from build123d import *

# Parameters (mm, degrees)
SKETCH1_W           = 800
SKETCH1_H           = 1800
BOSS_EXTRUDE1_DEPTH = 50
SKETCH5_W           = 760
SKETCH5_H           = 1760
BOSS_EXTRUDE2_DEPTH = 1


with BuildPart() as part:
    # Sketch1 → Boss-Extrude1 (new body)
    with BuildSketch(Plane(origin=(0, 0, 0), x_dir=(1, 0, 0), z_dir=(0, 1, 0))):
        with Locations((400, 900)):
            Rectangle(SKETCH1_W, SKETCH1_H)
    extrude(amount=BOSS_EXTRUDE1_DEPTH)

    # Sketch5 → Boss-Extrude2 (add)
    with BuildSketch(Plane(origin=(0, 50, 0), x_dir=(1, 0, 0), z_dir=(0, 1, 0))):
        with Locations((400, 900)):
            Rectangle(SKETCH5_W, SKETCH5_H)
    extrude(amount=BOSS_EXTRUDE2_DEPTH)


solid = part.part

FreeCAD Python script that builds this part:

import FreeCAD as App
import Part
import Sketcher
Q = App.Units.Quantity

doc = App.newDocument("Part")
body = doc.addObject("PartDesign::Body", "Body")

sketch1 = body.newObject("Sketcher::SketchObject", "Sketch")
sketch1.AttachmentSupport = (doc.getObject("XZ_Plane"), [""])
sketch1.MapMode = "FlatFace"
sketch1.addGeometry(Part.LineSegment(App.Vector(0, -1800, 0), App.Vector(0, 0, 0)), False)
sketch1.addGeometry(Part.LineSegment(App.Vector(0, 0, 0), App.Vector(800, 0, 0)), False)
sketch1.addGeometry(Part.LineSegment(App.Vector(800, 0, 0), App.Vector(800, -1800, 0)), False)
sketch1.addGeometry(Part.LineSegment(App.Vector(800, -1800, 0), App.Vector(0, -1800, 0)), False)
sketch1.addConstraint(Sketcher.Constraint("Coincident", 0, 2, 1, 1))
sketch1.addConstraint(Sketcher.Constraint("Coincident", 1, 2, 2, 1))
sketch1.addConstraint(Sketcher.Constraint("Coincident", 2, 2, 3, 1))
sketch1.addConstraint(Sketcher.Constraint("Coincident", 3, 2, 0, 1))
sketch1.addConstraint(Sketcher.Constraint("Vertical", 0))
sketch1.addConstraint(Sketcher.Constraint("Horizontal", 1))
sketch1.addConstraint(Sketcher.Constraint("Vertical", 2))
sketch1.addConstraint(Sketcher.Constraint("Horizontal", 3))
sketch1.addConstraint(Sketcher.Constraint("Coincident", 0, 2, -1, 1))
sketch1.addConstraint(Sketcher.Constraint("DistanceX", 1, 1, 1, 2, Q("800 mm")))
sketch1.addConstraint(Sketcher.Constraint("DistanceY", 0, 1, 0, 2, Q("1800 mm")))
pad1 = body.newObject("PartDesign::Pad", "Pad")
pad1.Profile = sketch1
pad1.Length = 50
pad1.Reversed = True

sketch2 = body.newObject("Sketcher::SketchObject", "Sketch001")
sketch2.AttachmentSupport = (doc.getObject("XZ_Plane"), [""])
sketch2.MapMode = "FlatFace"
sketch2.AttachmentOffset = App.Placement(App.Vector(0, 0, -50), App.Rotation())
sketch2.addGeometry(Part.LineSegment(App.Vector(20, -1780, 0), App.Vector(20, -20, 0)), False)
sketch2.addGeometry(Part.LineSegment(App.Vector(20, -20, 0), App.Vector(780, -20, 0)), False)
sketch2.addGeometry(Part.LineSegment(App.Vector(780, -20, 0), App.Vector(780, -1780, 0)), False)
sketch2.addGeometry(Part.LineSegment(App.Vector(780, -1780, 0), App.Vector(20, -1780, 0)), False)
sketch2.addConstraint(Sketcher.Constraint("Coincident", 0, 2, 1, 1))
sketch2.addConstraint(Sketcher.Constraint("Coincident", 1, 2, 2, 1))
sketch2.addConstraint(Sketcher.Constraint("Coincident", 2, 2, 3, 1))
sketch2.addConstraint(Sketcher.Constraint("Coincident", 3, 2, 0, 1))
sketch2.addConstraint(Sketcher.Constraint("Vertical", 0))
sketch2.addConstraint(Sketcher.Constraint("Horizontal", 1))
sketch2.addConstraint(Sketcher.Constraint("Vertical", 2))
sketch2.addConstraint(Sketcher.Constraint("Horizontal", 3))
sketch2.addConstraint(Sketcher.Constraint("DistanceX", 1, 1, 1, 2, Q("760 mm")))
sketch2.addConstraint(Sketcher.Constraint("DistanceY", 0, 1, 0, 2, Q("1760 mm")))
sketch2.addConstraint(Sketcher.Constraint("DistanceX", -1, 1, 0, 2, Q("20 mm")))
sketch2.addConstraint(Sketcher.Constraint("DistanceY", 0, 2, -1, 1, Q("20 mm")))
pad2 = body.newObject("PartDesign::Pad", "Pad001")
pad2.Profile = sketch2
pad2.Length = 1
pad2.Reversed = True

doc.recompute()
